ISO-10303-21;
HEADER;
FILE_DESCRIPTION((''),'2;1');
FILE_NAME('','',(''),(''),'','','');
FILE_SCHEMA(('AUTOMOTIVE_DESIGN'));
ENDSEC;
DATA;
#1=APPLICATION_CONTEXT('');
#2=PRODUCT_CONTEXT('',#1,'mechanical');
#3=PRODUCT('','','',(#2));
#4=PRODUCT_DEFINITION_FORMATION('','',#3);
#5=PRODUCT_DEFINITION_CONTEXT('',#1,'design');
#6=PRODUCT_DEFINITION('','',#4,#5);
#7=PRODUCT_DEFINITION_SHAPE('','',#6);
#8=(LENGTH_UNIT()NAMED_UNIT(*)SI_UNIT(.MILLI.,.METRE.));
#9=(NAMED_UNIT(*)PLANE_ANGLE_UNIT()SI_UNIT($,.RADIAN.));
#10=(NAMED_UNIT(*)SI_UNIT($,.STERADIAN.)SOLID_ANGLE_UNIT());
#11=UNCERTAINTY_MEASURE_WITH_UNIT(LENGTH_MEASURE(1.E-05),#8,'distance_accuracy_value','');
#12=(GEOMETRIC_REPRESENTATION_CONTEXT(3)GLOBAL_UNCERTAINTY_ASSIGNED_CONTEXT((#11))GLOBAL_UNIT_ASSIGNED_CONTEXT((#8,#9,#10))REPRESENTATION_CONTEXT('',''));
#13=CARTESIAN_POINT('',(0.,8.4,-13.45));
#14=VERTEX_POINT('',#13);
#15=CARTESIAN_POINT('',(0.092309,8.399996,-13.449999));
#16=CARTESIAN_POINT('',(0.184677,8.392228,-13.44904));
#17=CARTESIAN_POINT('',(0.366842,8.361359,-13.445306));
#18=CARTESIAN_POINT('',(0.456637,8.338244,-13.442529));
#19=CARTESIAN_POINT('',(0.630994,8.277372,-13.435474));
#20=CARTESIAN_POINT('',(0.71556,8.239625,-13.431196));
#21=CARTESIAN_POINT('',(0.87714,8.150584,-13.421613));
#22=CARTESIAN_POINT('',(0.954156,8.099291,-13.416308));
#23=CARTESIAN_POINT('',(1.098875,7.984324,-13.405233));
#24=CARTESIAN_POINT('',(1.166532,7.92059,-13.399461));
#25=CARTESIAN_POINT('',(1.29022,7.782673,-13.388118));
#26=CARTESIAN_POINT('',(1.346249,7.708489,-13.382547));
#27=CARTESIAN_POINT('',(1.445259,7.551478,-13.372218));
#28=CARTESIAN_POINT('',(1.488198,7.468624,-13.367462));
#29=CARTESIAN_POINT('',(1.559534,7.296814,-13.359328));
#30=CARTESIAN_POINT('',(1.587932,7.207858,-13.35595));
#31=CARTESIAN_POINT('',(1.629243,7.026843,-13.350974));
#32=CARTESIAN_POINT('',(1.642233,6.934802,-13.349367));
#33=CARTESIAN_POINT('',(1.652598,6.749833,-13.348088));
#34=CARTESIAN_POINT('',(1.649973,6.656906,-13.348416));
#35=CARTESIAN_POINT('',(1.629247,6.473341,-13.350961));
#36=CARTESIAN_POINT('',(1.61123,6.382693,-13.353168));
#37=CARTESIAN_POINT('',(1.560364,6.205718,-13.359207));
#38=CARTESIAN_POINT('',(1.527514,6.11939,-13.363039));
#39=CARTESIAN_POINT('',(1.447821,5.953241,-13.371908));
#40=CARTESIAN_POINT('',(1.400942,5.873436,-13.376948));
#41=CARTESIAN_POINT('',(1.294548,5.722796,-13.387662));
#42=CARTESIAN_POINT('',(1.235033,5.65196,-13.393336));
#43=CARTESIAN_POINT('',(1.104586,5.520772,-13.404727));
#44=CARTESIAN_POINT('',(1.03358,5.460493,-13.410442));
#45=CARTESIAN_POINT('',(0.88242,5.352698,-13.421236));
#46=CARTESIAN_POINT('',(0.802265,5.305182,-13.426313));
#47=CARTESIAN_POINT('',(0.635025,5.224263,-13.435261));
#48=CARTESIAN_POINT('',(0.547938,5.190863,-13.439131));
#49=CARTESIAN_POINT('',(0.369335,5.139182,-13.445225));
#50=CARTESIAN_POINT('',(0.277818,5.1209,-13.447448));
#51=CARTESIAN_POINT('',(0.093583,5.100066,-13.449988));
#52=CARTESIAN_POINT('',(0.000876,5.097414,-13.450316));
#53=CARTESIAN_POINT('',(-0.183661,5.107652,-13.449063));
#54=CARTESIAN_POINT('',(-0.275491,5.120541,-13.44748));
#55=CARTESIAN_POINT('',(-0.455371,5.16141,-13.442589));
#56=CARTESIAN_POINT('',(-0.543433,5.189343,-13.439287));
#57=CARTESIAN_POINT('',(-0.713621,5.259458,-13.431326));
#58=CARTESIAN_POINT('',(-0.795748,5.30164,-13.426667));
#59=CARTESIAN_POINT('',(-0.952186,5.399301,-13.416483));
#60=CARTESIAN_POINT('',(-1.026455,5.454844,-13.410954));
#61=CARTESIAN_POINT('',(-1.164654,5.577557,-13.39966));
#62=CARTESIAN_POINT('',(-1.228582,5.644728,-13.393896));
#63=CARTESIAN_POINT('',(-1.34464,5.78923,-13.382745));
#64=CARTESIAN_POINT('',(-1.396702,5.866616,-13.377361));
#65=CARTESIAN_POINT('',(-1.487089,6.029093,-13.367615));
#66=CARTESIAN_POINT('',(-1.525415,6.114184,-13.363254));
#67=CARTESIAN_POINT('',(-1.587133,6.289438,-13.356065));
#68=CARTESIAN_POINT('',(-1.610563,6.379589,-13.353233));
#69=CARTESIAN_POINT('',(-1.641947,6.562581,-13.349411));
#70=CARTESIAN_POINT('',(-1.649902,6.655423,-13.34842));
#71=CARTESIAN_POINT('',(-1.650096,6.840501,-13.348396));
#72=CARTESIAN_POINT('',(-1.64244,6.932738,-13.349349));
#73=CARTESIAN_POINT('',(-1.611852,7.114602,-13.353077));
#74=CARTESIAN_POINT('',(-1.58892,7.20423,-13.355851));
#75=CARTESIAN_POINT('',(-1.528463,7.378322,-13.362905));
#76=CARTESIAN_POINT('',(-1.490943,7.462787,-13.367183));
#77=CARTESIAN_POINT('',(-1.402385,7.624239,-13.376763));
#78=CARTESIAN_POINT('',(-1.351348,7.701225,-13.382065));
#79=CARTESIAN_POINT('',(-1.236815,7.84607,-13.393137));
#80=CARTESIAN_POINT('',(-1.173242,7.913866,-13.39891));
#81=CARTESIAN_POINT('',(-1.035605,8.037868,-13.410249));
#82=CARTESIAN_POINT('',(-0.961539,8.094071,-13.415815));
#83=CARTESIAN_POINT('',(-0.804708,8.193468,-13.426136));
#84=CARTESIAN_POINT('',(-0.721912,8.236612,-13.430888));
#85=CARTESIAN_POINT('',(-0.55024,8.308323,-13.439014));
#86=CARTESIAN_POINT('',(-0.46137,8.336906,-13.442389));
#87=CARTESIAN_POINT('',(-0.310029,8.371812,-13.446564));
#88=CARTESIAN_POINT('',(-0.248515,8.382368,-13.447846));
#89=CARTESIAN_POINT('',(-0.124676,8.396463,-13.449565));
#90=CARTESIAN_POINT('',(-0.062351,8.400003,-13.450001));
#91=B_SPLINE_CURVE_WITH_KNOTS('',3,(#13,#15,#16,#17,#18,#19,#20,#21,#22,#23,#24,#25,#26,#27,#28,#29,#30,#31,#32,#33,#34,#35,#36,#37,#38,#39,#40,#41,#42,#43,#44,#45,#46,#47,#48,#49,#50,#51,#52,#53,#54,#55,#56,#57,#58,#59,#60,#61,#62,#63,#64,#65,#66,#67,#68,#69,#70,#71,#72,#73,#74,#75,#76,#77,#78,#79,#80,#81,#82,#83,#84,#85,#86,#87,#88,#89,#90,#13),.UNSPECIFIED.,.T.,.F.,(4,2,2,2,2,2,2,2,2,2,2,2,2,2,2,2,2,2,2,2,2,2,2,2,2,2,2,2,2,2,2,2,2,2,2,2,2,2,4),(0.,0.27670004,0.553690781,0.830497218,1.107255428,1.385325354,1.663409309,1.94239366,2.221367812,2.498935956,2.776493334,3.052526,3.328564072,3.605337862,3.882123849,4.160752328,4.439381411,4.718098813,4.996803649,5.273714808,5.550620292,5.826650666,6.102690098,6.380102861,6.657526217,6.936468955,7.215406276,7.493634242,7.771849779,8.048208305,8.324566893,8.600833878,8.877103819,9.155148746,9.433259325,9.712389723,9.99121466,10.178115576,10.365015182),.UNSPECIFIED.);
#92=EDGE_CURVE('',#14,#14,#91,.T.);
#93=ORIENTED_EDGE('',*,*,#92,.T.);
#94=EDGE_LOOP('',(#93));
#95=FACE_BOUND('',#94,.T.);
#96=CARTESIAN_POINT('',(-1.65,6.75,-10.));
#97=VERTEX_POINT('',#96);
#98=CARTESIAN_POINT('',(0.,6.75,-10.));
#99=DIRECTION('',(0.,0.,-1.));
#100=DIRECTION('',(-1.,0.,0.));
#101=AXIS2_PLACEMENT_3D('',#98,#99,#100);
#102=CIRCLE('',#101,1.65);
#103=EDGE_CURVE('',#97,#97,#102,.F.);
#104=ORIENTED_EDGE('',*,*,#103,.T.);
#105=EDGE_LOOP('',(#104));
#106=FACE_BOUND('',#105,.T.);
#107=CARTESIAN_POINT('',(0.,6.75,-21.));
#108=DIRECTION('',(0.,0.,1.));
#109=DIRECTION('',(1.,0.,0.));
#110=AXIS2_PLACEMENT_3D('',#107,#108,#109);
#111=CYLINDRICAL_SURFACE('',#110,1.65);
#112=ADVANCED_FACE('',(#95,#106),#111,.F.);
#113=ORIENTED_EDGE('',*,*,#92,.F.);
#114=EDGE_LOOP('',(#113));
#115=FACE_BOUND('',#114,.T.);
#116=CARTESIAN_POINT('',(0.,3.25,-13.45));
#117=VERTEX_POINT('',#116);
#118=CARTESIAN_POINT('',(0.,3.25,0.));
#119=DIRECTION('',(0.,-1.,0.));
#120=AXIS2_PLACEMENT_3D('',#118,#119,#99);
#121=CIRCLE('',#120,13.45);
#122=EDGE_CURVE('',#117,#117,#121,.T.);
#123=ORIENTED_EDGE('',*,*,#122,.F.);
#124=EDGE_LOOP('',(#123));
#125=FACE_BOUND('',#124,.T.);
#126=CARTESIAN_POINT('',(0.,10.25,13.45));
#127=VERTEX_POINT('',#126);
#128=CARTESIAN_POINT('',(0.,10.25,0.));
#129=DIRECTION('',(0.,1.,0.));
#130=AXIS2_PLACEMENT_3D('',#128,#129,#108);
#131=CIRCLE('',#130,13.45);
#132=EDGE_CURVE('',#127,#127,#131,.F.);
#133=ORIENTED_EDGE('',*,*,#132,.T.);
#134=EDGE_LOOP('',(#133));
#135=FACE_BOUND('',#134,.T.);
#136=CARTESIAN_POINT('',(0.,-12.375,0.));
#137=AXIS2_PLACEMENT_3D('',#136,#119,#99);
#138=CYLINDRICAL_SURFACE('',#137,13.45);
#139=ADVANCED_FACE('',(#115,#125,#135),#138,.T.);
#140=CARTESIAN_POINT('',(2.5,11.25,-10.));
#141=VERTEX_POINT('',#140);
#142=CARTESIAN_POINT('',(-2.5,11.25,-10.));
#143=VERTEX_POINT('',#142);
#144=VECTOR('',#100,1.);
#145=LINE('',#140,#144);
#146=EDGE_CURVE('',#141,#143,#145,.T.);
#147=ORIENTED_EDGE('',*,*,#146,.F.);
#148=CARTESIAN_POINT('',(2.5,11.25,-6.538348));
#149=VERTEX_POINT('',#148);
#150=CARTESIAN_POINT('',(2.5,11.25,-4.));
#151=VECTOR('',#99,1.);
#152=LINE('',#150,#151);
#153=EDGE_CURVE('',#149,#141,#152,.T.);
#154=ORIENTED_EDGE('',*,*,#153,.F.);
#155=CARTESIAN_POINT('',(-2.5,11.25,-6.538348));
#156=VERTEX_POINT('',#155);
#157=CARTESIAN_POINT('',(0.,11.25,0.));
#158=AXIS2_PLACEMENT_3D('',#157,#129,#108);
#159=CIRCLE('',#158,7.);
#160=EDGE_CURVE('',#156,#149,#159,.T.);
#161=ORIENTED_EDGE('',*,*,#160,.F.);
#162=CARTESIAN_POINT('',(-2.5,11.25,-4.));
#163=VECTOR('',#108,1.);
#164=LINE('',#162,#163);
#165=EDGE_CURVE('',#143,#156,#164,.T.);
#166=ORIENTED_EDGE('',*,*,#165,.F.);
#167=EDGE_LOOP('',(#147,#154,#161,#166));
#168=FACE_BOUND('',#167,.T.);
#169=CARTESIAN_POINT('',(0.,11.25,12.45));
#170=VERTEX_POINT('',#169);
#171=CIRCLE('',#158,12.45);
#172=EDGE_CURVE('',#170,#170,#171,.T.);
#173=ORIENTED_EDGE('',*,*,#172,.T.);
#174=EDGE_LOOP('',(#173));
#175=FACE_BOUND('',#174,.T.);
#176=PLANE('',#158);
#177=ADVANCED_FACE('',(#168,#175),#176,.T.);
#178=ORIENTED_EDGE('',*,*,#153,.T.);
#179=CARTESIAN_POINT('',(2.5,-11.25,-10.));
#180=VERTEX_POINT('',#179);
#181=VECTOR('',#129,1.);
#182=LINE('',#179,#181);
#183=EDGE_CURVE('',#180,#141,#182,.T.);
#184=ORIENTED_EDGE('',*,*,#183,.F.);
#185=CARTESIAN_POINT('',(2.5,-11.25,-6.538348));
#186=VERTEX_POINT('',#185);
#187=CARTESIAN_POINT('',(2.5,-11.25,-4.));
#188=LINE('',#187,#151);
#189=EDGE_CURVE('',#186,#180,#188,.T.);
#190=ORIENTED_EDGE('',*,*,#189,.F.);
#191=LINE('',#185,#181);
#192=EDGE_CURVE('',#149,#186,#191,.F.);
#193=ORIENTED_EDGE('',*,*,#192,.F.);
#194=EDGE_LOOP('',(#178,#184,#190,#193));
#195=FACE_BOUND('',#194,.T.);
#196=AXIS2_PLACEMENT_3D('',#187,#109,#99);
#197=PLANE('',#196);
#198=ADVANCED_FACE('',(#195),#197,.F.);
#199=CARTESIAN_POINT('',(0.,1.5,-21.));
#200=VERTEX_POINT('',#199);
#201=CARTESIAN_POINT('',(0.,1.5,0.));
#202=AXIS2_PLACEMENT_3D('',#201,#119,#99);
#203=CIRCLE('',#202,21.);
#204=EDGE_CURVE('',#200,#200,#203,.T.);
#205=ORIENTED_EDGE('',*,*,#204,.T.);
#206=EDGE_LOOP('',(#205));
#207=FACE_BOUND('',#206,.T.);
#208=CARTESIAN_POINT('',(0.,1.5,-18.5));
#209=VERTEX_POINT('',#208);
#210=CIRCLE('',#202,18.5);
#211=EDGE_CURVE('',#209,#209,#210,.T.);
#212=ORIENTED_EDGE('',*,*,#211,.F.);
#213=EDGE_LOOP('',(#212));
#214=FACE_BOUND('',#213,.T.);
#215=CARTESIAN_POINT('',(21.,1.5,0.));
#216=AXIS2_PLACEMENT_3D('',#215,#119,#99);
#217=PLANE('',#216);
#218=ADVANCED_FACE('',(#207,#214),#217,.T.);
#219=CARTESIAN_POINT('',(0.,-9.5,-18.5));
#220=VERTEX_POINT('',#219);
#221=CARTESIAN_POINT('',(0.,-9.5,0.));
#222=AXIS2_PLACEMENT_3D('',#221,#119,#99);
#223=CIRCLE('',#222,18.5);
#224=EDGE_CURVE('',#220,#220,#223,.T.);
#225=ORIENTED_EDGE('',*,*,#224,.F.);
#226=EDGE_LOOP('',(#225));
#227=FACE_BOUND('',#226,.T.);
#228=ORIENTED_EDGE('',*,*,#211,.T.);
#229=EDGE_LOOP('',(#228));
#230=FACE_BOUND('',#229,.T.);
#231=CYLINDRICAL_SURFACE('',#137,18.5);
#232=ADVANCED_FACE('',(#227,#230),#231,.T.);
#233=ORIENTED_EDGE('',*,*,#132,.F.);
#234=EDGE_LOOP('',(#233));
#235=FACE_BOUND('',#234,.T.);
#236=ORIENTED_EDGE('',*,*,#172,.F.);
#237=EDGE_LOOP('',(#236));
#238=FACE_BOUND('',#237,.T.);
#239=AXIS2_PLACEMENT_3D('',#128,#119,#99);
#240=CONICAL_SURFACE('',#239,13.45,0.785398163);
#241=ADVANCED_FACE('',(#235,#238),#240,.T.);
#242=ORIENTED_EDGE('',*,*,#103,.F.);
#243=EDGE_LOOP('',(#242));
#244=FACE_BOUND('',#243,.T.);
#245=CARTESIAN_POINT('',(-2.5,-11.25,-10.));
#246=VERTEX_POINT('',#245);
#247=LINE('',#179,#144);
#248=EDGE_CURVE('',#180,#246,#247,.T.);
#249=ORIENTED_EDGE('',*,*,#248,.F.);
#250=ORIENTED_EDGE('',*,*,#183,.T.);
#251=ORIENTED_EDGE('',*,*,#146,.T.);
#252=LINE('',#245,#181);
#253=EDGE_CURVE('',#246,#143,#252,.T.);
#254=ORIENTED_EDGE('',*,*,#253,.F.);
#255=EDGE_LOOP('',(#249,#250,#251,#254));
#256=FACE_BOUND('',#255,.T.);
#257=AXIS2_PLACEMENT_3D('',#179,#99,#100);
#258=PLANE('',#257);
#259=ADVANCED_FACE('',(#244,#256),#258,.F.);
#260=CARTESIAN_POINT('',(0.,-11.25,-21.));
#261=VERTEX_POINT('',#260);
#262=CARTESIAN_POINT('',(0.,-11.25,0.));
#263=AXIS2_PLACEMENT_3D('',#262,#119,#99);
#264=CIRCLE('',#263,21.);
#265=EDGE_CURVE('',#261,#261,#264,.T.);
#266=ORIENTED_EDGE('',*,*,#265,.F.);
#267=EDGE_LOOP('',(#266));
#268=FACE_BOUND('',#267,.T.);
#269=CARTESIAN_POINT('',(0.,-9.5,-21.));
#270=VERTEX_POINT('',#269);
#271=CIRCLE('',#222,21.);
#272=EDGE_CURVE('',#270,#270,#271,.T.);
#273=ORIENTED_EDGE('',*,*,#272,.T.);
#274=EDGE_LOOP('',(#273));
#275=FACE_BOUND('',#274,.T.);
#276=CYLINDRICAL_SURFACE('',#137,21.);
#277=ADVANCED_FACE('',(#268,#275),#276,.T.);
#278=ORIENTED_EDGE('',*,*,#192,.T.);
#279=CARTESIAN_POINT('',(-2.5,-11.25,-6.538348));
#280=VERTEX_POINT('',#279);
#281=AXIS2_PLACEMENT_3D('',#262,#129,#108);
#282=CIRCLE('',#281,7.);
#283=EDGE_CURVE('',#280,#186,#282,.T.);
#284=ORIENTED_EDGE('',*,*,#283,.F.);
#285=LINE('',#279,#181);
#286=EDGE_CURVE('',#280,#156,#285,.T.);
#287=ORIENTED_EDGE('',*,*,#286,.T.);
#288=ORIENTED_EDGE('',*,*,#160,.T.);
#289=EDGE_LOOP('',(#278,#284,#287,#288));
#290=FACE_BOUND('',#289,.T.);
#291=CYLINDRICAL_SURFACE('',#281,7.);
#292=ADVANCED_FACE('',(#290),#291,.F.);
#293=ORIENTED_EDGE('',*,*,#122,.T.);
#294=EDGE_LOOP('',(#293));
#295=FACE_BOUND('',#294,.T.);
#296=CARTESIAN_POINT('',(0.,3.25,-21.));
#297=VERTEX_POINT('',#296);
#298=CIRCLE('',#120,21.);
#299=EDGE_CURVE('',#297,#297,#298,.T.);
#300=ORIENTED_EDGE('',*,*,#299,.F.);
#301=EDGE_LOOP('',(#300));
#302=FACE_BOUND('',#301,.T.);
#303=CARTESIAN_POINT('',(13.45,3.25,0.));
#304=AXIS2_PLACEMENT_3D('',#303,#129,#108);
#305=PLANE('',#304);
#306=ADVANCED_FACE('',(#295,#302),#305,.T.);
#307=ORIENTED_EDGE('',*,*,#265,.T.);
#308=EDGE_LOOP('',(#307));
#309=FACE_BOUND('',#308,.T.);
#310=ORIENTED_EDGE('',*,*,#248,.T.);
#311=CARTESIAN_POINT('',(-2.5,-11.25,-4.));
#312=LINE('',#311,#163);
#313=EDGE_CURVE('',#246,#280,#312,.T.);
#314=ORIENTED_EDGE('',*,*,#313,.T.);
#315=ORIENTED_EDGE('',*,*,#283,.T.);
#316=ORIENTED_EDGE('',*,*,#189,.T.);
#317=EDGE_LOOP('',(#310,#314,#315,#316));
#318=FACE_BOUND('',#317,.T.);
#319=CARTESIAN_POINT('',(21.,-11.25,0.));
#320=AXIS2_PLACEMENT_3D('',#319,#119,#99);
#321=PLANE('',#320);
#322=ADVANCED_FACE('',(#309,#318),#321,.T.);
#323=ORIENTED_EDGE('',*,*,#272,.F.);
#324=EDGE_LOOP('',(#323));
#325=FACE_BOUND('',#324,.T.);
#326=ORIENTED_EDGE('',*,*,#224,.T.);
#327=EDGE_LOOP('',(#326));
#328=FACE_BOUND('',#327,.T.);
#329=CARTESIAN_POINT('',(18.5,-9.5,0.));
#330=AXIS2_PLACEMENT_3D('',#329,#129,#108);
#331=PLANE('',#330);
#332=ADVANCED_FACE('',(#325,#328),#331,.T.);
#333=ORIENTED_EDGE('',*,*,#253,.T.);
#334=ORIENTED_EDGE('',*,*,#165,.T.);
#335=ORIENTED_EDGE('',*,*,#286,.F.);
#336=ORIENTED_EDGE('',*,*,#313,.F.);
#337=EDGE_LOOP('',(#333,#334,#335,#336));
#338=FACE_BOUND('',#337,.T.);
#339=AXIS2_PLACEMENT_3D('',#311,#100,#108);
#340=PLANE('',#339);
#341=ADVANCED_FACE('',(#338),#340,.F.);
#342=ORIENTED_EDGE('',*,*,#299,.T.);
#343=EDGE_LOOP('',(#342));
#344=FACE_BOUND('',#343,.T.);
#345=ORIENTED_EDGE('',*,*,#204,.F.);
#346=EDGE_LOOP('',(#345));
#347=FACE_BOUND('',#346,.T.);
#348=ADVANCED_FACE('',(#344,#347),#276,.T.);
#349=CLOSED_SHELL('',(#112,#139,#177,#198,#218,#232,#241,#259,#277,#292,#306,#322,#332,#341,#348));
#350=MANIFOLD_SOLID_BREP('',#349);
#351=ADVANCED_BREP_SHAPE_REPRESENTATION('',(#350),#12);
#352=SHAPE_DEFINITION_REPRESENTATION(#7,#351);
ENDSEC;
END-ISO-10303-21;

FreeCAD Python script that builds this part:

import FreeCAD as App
import Part
import Sketcher


def edges_at(feature, points):
    """Names of the edges that pass closest to the given points."""
    edges = feature.Shape.Edges
    near = lambda p: min(range(len(edges)), key=lambda i: edges[i].distToShape(Part.Vertex(*p))[0])
    return sorted({f"Edge{near(p) + 1}" for p in points})

doc = App.newDocument("Part")
body = doc.addObject("PartDesign::Body", "Body")

# Sketch on XY plane
sketch1 = doc.addObject("Sketcher::SketchObject", "Sketch")
body.addObject(sketch1)
sketch1.AttachmentSupport = (doc.XY_Plane, [""])
sketch1.MapMode = "FlatFace"
sketch1.addGeometry(Part.LineSegment(App.Vector(13.4, 11.2, 0), App.Vector(0, 11.2, 0)), False)
sketch1.addGeometry(Part.LineSegment(App.Vector(0, 11.2, 0), App.Vector(0, -11.2, 0)), False)
sketch1.addGeometry(Part.LineSegment(App.Vector(0, -11.2, 0), App.Vector(21, -11.2, 0)), False)
sketch1.addGeometry(Part.LineSegment(App.Vector(21, -11.2, 0), App.Vector(21, -9.5, 0)), False)
sketch1.addGeometry(Part.LineSegment(App.Vector(21, -9.5, 0), App.Vector(18.5, -9.5, 0)), False)
sketch1.addGeometry(Part.LineSegment(App.Vector(18.5, -9.5, 0), App.Vector(18.5, 1.5, 0)), False)
sketch1.addGeometry(Part.LineSegment(App.Vector(18.5, 1.5, 0), App.Vector(21, 1.5, 0)), False)
sketch1.addGeometry(Part.LineSegment(App.Vector(21, 1.5, 0), App.Vector(21, 3.2, 0)), False)
sketch1.addGeometry(Part.LineSegment(App.Vector(21, 3.2, 0), App.Vector(13.4, 3.2, 0)), False)
sketch1.addGeometry(Part.LineSegment(App.Vector(13.4, 3.2, 0), App.Vector(13.4, 11.2, 0)), False)
sketch1.addConstraint(Sketcher.Constraint("Coincident", 0, 2, 1, 1))
sketch1.addConstraint(Sketcher.Constraint("Coincident", 1, 2, 2, 1))
sketch1.addConstraint(Sketcher.Constraint("Coincident", 2, 2, 3, 1))
sketch1.addConstraint(Sketcher.Constraint("Coincident", 3, 2, 4, 1))
sketch1.addConstraint(Sketcher.Constraint("Coincident", 4, 2, 5, 1))
sketch1.addConstraint(Sketcher.Constraint("Coincident", 5, 2, 6, 1))
sketch1.addConstraint(Sketcher.Constraint("Coincident", 6, 2, 7, 1))
sketch1.addConstraint(Sketcher.Constraint("Coincident", 7, 2, 8, 1))
sketch1.addConstraint(Sketcher.Constraint("Coincident", 8, 2, 9, 1))
sketch1.addConstraint(Sketcher.Constraint("Coincident", 9, 2, 0, 1))
sketch1.addConstraint(Sketcher.Constraint("Horizontal", 0))
sketch1.addConstraint(Sketcher.Constraint("Vertical", 1))
sketch1.addConstraint(Sketcher.Constraint("Horizontal", 2))
sketch1.addConstraint(Sketcher.Constraint("Vertical", 3))
sketch1.addConstraint(Sketcher.Constraint("Horizontal", 4))
sketch1.addConstraint(Sketcher.Constraint("Vertical", 5))
sketch1.addConstraint(Sketcher.Constraint("Horizontal", 6))
sketch1.addConstraint(Sketcher.Constraint("Vertical", 7))
sketch1.addConstraint(Sketcher.Constraint("Horizontal", 8))
sketch1.addConstraint(Sketcher.Constraint("Vertical", 9))
sketch1.addConstraint(Sketcher.Constraint("Symmetric", 0, 2, 1, 2, -1, 1))
sketch1.addConstraint(Sketcher.Constraint("Vertical", 3, 2, 6, 2))
sketch1.addConstraint(Sketcher.Constraint("Equal", 3, 7))
sketch1.addConstraint(Sketcher.Constraint("DistanceX", 2, 1, 2, 2, 21.0))
sketch1.addConstraint(Sketcher.Constraint("DistanceY", 5, 1, 5, 2, 11.0))
sketch1.addConstraint(Sketcher.Constraint("DistanceY", 9, 1, 9, 2, 8.0))
sketch1.addConstraint(Sketcher.Constraint("DistanceX", 4, 2, 4, 1, 2.5))
sketch1.addConstraint(Sketcher.Constraint("DistanceY", 1, 2, 1, 1, 22.5))
sketch1.addConstraint(Sketcher.Constraint("DistanceX", 0, 2, 0, 1, 13.45))
revolution = doc.addObject("PartDesign::Revolution", "Revolution")
body.addObject(revolution)
revolution.Profile = sketch1
revolution.ReferenceAxis = (sketch1, ["V_Axis"])
revolution.Angle = 360
doc.recompute()

chamfer = doc.addObject("PartDesign::Chamfer", "Chamfer")
body.addObject(chamfer)
chamfer.Base = (revolution, edges_at(revolution, [(0, 11.25, 13.45)]))
chamfer.Size = 1

# Sketch on XZ plane
sketch2 = doc.addObject("Sketcher::SketchObject", "Sketch001")
body.addObject(sketch2)
sketch2.AttachmentSupport = (doc.XZ_Plane, [""])
sketch2.MapMode = "FlatFace"
sketch2.AttachmentOffset = App.Placement(App.Vector(0, 0, -11.25), App.Rotation())
sketch2.addGeometry(Part.Circle(App.Vector(0, 0, 0), App.Vector(0, 0, 1), 6), False)
sketch2.addConstraint(Sketcher.Constraint("Coincident", 0, 3, -1, 1))
sketch2.addConstraint(Sketcher.Constraint("Diameter", 0, 12.0))
pocket1 = doc.addObject("PartDesign::Pocket", "Pocket")
body.addObject(pocket1)
pocket1.Profile = sketch2
pocket1.Type = "ThroughAll"
pocket1.Reversed = True

# Sketch on XY plane
sketch3 = doc.addObject("Sketcher::SketchObject", "Sketch002")
body.addObject(sketch3)
sketch3.AttachmentSupport = (doc.XY_Plane, [""])
sketch3.MapMode = "FlatFace"
sketch3.addGeometry(Part.Circle(App.Vector(0, 6.8, 0), App.Vector(0, 0, 1), 1.6), False)
sketch3.addConstraint(Sketcher.Constraint("PointOnObject", 0, 3, -2))
sketch3.addConstraint(Sketcher.Constraint("Diameter", 0, 3.3))
sketch3.addConstraint(Sketcher.Constraint("DistanceY", -1, 1, 0, 3, 6.75))
pocket2 = doc.addObject("PartDesign::Pocket", "Pocket001")
body.addObject(pocket2)
pocket2.Profile = sketch3
pocket2.Type = "ThroughAll"

# Sketch on XZ plane
sketch4 = doc.addObject("Sketcher::SketchObject", "Sketch003")
body.addObject(sketch4)
sketch4.AttachmentSupport = (doc.XZ_Plane, [""])
sketch4.MapMode = "FlatFace"
sketch4.AttachmentOffset = App.Placement(App.Vector(0, 0, -11.25), App.Rotation())
sketch4.addGeometry(Part.Circle(App.Vector(0, 0, 0), App.Vector(0, 0, 1), 7), False)
sketch4.addConstraint(Sketcher.Constraint("Coincident", 0, 3, -1, 1))
sketch4.addConstraint(Sketcher.Constraint("Diameter", 0, 14.0))
pocket3 = doc.addObject("PartDesign::Pocket", "Pocket002")
body.addObject(pocket3)
pocket3.Profile = sketch4
pocket3.Type = "ThroughAll"
pocket3.Reversed = True

# Sketch on XZ plane
sketch5 = doc.addObject("Sketcher::SketchObject", "Sketch004")
body.addObject(sketch5)
sketch5.AttachmentSupport = (doc.XZ_Plane, [""])
sketch5.MapMode = "FlatFace"
sketch5.AttachmentOffset = App.Placement(App.Vector(0, 0, -11.25), App.Rotation())
sketch5.addGeometry(Part.LineSegment(App.Vector(-2, -10, 0), App.Vector(-2, -4, 0)), False)
sketch5.addGeometry(Part.LineSegment(App.Vector(-2, -4, 0), App.Vector(2, -4, 0)), False)
sketch5.addGeometry(Part.LineSegment(App.Vector(2, -4, 0), App.Vector(2, -10, 0)), False)
sketch5.addGeometry(Part.LineSegment(App.Vector(2, -10, 0), App.Vector(-2, -10, 0)), False)
sketch5.addConstraint(Sketcher.Constraint("Coincident", 0, 2, 1, 1))
sketch5.addConstraint(Sketcher.Constraint("Coincident", 1, 2, 2, 1))
sketch5.addConstraint(Sketcher.Constraint("Coincident", 2, 2, 3, 1))
sketch5.addConstraint(Sketcher.Constraint("Coincident", 3, 2, 0, 1))
sketch5.addConstraint(Sketcher.Constraint("Vertical", 0))
sketch5.addConstraint(Sketcher.Constraint("Horizontal", 1))
sketch5.addConstraint(Sketcher.Constraint("Vertical", 2))
sketch5.addConstraint(Sketcher.Constraint("Horizontal", 3))
sketch5.addConstraint(Sketcher.Constraint("DistanceX", 1, 1, 1, 2, 5.0))
sketch5.addConstraint(Sketcher.Constraint("DistanceY", 0, 1, 0, 2, 6.0))
sketch5.addConstraint(Sketcher.Constraint("DistanceY", 0, 2, -1, 1, 4.0))
sketch5.addConstraint(Sketcher.Constraint("DistanceX", 0, 2, -1, 1, 2.5))
pocket4 = doc.addObject("PartDesign::Pocket", "Pocket003")
body.addObject(pocket4)
pocket4.Profile = sketch5
pocket4.Type = "ThroughAll"
pocket4.Reversed = True

doc.recompute()
